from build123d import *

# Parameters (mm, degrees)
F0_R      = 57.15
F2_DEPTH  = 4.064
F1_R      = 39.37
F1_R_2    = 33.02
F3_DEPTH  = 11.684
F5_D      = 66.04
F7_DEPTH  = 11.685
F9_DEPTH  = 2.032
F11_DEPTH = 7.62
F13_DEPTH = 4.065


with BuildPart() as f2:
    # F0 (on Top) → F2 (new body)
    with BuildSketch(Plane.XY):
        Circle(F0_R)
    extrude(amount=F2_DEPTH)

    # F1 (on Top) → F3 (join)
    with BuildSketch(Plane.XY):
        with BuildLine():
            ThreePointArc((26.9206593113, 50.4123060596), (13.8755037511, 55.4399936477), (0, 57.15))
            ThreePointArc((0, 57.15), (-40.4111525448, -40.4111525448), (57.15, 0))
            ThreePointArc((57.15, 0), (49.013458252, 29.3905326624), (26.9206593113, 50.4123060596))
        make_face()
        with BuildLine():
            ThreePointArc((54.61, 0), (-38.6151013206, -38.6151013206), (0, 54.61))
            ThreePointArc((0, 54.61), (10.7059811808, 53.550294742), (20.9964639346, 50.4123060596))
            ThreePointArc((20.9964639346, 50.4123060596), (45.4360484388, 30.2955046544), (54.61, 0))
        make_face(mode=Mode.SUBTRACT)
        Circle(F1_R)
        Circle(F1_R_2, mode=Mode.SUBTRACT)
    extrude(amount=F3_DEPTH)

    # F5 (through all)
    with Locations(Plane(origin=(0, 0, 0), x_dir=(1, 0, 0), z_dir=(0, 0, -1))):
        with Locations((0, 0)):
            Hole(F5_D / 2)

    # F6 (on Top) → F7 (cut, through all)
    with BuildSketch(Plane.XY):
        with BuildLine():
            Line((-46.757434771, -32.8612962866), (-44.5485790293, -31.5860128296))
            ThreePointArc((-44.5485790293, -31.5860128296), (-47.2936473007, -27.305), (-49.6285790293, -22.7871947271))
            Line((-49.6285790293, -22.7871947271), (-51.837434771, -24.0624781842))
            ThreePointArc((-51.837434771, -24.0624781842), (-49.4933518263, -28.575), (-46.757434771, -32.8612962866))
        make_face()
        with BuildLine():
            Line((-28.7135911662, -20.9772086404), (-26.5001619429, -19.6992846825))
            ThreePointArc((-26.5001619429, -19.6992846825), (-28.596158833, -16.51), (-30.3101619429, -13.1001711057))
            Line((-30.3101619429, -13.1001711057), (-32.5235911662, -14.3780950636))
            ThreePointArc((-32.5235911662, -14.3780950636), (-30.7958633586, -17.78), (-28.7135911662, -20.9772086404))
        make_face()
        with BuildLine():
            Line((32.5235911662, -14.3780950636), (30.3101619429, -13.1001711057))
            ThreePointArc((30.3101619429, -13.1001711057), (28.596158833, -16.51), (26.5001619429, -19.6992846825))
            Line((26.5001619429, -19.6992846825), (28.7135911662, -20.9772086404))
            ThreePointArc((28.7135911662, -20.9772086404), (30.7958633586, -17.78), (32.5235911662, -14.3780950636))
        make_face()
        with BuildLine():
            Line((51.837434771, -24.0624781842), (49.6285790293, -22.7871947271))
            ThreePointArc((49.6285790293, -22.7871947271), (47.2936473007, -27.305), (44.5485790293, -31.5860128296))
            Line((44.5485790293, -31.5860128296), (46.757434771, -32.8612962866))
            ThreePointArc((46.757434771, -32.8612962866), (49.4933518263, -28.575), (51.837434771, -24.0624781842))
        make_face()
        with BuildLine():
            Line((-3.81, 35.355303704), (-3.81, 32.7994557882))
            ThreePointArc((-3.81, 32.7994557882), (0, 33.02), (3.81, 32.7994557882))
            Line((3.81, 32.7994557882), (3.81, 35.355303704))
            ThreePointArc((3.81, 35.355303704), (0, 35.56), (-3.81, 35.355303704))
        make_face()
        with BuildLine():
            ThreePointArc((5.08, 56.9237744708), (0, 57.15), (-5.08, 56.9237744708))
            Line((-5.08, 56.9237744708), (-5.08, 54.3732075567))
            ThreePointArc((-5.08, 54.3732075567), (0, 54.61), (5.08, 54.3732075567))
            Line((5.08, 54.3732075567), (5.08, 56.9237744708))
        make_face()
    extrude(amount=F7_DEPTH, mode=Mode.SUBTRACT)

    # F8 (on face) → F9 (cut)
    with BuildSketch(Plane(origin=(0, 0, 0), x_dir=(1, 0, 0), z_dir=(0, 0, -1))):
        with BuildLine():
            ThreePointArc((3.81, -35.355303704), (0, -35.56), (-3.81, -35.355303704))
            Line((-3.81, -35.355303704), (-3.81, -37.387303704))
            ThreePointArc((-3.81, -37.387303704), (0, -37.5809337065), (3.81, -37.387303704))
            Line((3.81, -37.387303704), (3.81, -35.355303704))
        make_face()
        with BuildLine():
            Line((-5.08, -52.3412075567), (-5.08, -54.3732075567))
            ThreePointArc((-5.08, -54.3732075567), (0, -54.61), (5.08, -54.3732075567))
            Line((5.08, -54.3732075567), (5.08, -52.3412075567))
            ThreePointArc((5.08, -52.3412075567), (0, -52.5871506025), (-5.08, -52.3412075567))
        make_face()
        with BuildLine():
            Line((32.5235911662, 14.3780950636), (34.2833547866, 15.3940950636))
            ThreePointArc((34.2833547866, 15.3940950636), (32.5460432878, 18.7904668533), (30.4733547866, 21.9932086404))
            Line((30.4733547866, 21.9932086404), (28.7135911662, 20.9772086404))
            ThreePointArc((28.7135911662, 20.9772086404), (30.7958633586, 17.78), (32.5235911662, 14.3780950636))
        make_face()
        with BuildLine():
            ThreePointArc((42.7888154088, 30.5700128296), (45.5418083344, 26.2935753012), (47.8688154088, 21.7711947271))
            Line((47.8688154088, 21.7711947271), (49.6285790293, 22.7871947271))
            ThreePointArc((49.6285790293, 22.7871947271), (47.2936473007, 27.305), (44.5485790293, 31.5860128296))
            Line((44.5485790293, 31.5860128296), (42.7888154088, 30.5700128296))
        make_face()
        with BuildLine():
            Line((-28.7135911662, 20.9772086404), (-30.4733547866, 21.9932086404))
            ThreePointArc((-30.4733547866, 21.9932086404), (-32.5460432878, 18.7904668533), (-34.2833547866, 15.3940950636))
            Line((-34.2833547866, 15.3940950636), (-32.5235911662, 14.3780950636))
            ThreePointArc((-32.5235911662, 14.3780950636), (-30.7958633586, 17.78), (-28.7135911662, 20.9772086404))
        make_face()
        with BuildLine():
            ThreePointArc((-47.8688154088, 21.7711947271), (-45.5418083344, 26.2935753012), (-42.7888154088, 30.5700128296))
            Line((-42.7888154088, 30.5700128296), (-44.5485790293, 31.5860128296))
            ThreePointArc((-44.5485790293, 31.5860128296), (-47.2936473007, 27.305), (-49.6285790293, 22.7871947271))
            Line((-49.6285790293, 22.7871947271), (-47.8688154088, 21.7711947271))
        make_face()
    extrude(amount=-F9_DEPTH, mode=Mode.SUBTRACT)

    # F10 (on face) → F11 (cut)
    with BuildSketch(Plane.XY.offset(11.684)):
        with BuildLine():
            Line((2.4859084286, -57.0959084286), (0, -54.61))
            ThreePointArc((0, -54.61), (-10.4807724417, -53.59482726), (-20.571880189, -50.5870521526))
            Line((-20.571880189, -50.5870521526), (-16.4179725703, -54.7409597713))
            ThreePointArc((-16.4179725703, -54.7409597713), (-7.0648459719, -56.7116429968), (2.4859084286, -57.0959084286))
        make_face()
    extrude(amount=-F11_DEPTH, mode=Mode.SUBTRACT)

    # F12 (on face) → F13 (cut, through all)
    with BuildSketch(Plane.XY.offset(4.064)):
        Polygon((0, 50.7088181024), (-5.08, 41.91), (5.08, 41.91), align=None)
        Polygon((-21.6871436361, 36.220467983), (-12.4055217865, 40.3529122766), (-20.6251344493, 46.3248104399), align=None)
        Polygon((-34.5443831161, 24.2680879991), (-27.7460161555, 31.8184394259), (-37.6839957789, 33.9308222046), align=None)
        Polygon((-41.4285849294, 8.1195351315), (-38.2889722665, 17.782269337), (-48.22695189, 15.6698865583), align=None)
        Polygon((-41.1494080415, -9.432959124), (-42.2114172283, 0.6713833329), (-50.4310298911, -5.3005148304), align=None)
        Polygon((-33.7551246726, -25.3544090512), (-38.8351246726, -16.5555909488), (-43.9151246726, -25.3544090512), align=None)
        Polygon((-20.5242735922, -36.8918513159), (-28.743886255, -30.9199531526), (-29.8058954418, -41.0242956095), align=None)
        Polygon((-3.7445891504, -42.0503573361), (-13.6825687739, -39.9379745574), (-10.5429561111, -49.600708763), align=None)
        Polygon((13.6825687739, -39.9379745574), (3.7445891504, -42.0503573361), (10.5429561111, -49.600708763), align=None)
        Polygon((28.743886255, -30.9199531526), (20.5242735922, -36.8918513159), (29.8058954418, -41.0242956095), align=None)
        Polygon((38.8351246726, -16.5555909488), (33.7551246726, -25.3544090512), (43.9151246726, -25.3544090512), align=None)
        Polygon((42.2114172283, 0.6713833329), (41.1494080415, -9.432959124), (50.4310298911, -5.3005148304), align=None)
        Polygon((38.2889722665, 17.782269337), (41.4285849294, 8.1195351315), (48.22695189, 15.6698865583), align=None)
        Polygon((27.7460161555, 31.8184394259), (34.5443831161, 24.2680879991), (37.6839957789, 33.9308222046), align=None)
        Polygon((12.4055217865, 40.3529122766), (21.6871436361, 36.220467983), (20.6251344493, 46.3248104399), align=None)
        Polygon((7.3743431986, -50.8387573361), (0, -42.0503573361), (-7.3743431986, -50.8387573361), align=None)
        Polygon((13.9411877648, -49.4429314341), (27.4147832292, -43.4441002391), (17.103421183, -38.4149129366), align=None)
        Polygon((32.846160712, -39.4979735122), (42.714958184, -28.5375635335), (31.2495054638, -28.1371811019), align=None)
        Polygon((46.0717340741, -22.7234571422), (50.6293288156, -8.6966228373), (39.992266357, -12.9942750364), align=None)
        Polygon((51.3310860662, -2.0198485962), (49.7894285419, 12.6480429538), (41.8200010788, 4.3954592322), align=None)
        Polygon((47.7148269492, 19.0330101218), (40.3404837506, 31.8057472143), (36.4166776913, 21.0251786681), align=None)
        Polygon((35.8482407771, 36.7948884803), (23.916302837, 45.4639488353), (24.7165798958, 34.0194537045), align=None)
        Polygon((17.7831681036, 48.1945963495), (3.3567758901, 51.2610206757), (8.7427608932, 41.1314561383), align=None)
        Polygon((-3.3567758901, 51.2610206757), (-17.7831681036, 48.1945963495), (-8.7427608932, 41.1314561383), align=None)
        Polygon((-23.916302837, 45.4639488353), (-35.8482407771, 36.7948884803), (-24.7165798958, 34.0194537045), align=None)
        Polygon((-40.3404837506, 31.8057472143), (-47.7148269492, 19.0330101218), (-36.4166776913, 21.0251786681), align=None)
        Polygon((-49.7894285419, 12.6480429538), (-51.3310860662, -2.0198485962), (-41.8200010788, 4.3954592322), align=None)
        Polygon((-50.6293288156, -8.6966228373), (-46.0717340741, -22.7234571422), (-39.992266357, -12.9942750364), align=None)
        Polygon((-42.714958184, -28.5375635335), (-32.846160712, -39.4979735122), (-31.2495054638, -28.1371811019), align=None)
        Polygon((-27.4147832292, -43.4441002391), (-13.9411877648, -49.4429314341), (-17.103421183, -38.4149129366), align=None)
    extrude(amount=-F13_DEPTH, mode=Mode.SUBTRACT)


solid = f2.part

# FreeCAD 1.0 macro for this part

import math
import FreeCAD as App
import Part
import Sketcher

V = App.Vector
Q = App.Units.Quantity


def add_polygon(sketch, points):
    """Adds a closed chain of lines whose ends are joined by coincident constraints."""
    first, n = sketch.GeometryCount, len(points)
    for a, b in zip(points, points[1:] + points[:1]):
        sketch.addGeometry(Part.LineSegment(App.Vector(*a, 0), App.Vector(*b, 0)), False)
    for i in range(n):
        sketch.addConstraint(Sketcher.Constraint("Coincident", first + i, 2, first + (i + 1) % n, 1))

doc = App.newDocument("Part")
body = doc.addObject("PartDesign::Body", "Body")

# Sketch on XY plane
sketch1 = doc.addObject("Sketcher::SketchObject", "Sketch")
body.addObject(sketch1)
sketch1.AttachmentSupport = (doc.XY_Plane, [""])
sketch1.MapMode = "FlatFace"
sketch1.addGeometry(Part.Circle(V(0, 0, 0), V(0, 0, 1), 57), False)
sketch1.addConstraint([
    Sketcher.Constraint("Coincident", 0, 3, -1, 1),
    Sketcher.Constraint("Diameter", 0, Q("4.5 in")),
])
pad1 = doc.addObject("PartDesign::Pad", "Pad")
body.addObject(pad1)
pad1.Profile = sketch1
pad1.Length = Q("0.16 in")

# Sketch on XY plane
sketch2 = doc.addObject("Sketcher::SketchObject", "Sketch001")
body.addObject(sketch2)
sketch2.AttachmentSupport = (doc.XY_Plane, [""])
sketch2.MapMode = "FlatFace"
sketch2.addGeometry([
    Part.ArcOfCircle(Part.Circle(V(0, 0, 0), V(0, 0, 1), 57), math.radians(62), math.radians(90)),  # 0
    Part.ArcOfCircle(Part.Circle(V(0, 0, 0), V(0, 0, 1), 57), math.radians(90), math.radians(422)),  # 1
    Part.ArcOfCircle(Part.Circle(V(0, 0, 0), V(0, 0, 1), 55), math.radians(0), math.radians(67)),  # 2
    Part.ArcOfCircle(Part.Circle(V(0, 0, 0), V(0, 0, 1), 55), math.radians(90), math.radians(360)),  # 3
    Part.ArcOfCircle(Part.Circle(V(0, 0, 0), V(0, 0, 1), 55), math.radians(67), math.radians(90)),  # 4
    Part.Circle(V(0, 0, 0), V(0, 0, 1), 39),  # 5
    Part.Circle(V(0, 0, 0), V(0, 0, 1), 33),  # 6
], False)
sketch2.addConstraint([
    Sketcher.Constraint("Tangent", 0, 1, 1, 2),
    Sketcher.Constraint("Coincident", 1, 1, 0, 2),
    Sketcher.Constraint("Tangent", 2, 1, 3, 2),
    Sketcher.Constraint("Tangent", 3, 1, 4, 2),
    Sketcher.Constraint("Tangent", 4, 1, 2, 2),
    Sketcher.Constraint("Coincident", 0, 3, -1, 1),
    Sketcher.Constraint("Coincident", 2, 3, -1, 1),
    Sketcher.Constraint("Coincident", 5, 3, -1, 1),
    Sketcher.Constraint("Coincident", 6, 3, -1, 1),
    Sketcher.Constraint("PointOnObject", 1, 1, -2),
    Sketcher.Constraint("PointOnObject", 2, 1, -1),
    Sketcher.Constraint("PointOnObject", 3, 1, -2),
    Sketcher.Constraint("Horizontal", 0, 1, 4, 1),
    Sketcher.Constraint("Diameter", 5, Q("3.1 in")),
    Sketcher.Constraint("Diameter", 6, Q("2.6 in")),
    Sketcher.Constraint("Radius", 0, Q("2.25 in")),
    Sketcher.Constraint("Radius", 2, Q("2.15 in")),
    Sketcher.Constraint("DistanceX", -1, 1, 0, 1, Q("26.920659 mm")),
])
pad2 = doc.addObject("PartDesign::Pad", "Pad001")
body.addObject(pad2)
pad2.Profile = sketch2
pad2.Length = Q("0.46 in")

# Sketch on XY plane
sketch3 = doc.addObject("Sketcher::SketchObject", "Sketch002")
body.addObject(sketch3)
sketch3.AttachmentSupport = (doc.XY_Plane, [""])
sketch3.MapMode = "FlatFace"
sketch3.addGeometry(Part.Circle(V(0, 0, 0), V(0, 0, 1), 33), False)
sketch3.addConstraint([
    Sketcher.Constraint("Coincident", 0, 3, -1, 1),
    Sketcher.Constraint("Diameter", 0, Q("2.6 in")),
])
doc.recompute()
hole = doc.addObject("PartDesign::Hole", "Hole")
body.addObject(hole)
hole.Profile = sketch3
hole.ThreadType = "None"
hole.Diameter = Q("2.6 in")
hole.DepthType = "ThroughAll"
hole.Reversed = True

# Sketch on XY plane
sketch4 = doc.addObject("Sketcher::SketchObject", "Sketch003")
body.addObject(sketch4)
sketch4.AttachmentSupport = (doc.XY_Plane, [""])
sketch4.MapMode = "FlatFace"
sketch4.addGeometry([
    Part.LineSegment(V(-46.8, -32.9, 0), V(-44.5, -31.6, 0)),  # 0
    Part.ArcOfCircle(Part.Circle(V(0, 0, 0), V(0, 0, 1), 54.6), math.radians(-155.34), math.radians(-144.66)),  # 1
    Part.LineSegment(V(-49.6, -22.8, 0), V(-51.8, -24.1, 0)),  # 2
    Part.ArcOfCircle(Part.Circle(V(0, 0, 0), V(0, 0, 1), 57.1), math.radians(-155.1), math.radians(-144.9)),  # 3
    Part.LineSegment(V(-28.7, -21, 0), V(-26.5, -19.7, 0)),  # 4
    Part.ArcOfCircle(Part.Circle(V(0, 0, 0), V(0, 0, 1), 33), math.radians(-156.63), math.radians(-143.37)),  # 5
    Part.LineSegment(V(-30.3, -13.1, 0), V(-32.5, -14.4, 0)),  # 6
    Part.ArcOfCircle(Part.Circle(V(0, 0, 0), V(0, 0, 1), 35.6), math.radians(-156.15), math.radians(-143.85)),  # 7
    Part.LineSegment(V(32.5, -14.4, 0), V(30.3, -13.1, 0)),  # 8
    Part.ArcOfCircle(Part.Circle(V(0, 0, 0), V(0, 0, 1), 33), math.radians(-36.63), math.radians(-23.37)),  # 9
    Part.LineSegment(V(26.5, -19.7, 0), V(28.7, -21, 0)),  # 10
    Part.ArcOfCircle(Part.Circle(V(0, 0, 0), V(0, 0, 1), 35.6), math.radians(-36.15), math.radians(-23.85)),  # 11
    Part.LineSegment(V(51.8, -24.1, 0), V(49.6, -22.8, 0)),  # 12
    Part.ArcOfCircle(Part.Circle(V(0, 0, 0), V(0, 0, 1), 54.6), math.radians(-35.34), math.radians(-24.66)),  # 13
    Part.LineSegment(V(44.5, -31.6, 0), V(46.8, -32.9, 0)),  # 14
    Part.ArcOfCircle(Part.Circle(V(0, 0, 0), V(0, 0, 1), 57.1), math.radians(-35.1), math.radians(-24.9)),  # 15
    Part.LineSegment(V(-3.8, 35.4, 0), V(-3.8, 32.8, 0)),  # 16
    Part.ArcOfCircle(Part.Circle(V(0, 0, 0), V(0, 0, 1), 33), math.radians(83.37), math.radians(96.63)),  # 17
    Part.LineSegment(V(3.8, 32.8, 0), V(3.8, 35.4, 0)),  # 18
    Part.ArcOfCircle(Part.Circle(V(0, 0, 0), V(0, 0, 1), 35.6), math.radians(83.85), math.radians(96.15)),  # 19
    Part.ArcOfCircle(Part.Circle(V(0, 0, 0), V(0, 0, 1), 57.2), math.radians(84.9), math.radians(95.1)),  # 20
    Part.LineSegment(V(-5.1, 56.9, 0), V(-5.1, 54.4, 0)),  # 21
    Part.ArcOfCircle(Part.Circle(V(0, 0, 0), V(0, 0, 1), 54.6), math.radians(84.66), math.radians(95.34)),  # 22
    Part.LineSegment(V(5.1, 54.4, 0), V(5.1, 56.9, 0)),  # 23
], False)
sketch4.addConstraint([
    Sketcher.Constraint("Coincident", 0, 2, 1, 2),
    Sketcher.Constraint("Coincident", 1, 1, 2, 1),
    Sketcher.Constraint("Coincident", 2, 2, 3, 1),
    Sketcher.Constraint("Coincident", 3, 2, 0, 1),
    Sketcher.Constraint("Coincident", 4, 2, 5, 2),
    Sketcher.Constraint("Coincident", 5, 1, 6, 1),
    Sketcher.Constraint("Coincident", 6, 2, 7, 1),
    Sketcher.Constraint("Coincident", 7, 2, 4, 1),
    Sketcher.Constraint("Coincident", 8, 2, 9, 2),
    Sketcher.Constraint("Coincident", 9, 1, 10, 1),
    Sketcher.Constraint("Coincident", 10, 2, 11, 1),
    Sketcher.Constraint("Coincident", 11, 2, 8, 1),
    Sketcher.Constraint("Coincident", 12, 2, 13, 2),
    Sketcher.Constraint("Coincident", 13, 1, 14, 1),
    Sketcher.Constraint("Coincident", 14, 2, 15, 1),
    Sketcher.Constraint("Coincident", 15, 2, 12, 1),
    Sketcher.Constraint("Coincident", 16, 2, 17, 2),
    Sketcher.Constraint("Coincident", 17, 1, 18, 1),
    Sketcher.Constraint("Coincident", 18, 2, 19, 1),
    Sketcher.Constraint("Coincident", 19, 2, 16, 1),
    Sketcher.Constraint("Coincident", 20, 2, 21, 1),
    Sketcher.Constraint("Coincident", 21, 2, 22, 2),
    Sketcher.Constraint("Coincident", 22, 1, 23, 1),
    Sketcher.Constraint("Coincident", 23, 2, 20, 1),
    Sketcher.Constraint("Vertical", 16),
    Sketcher.Constraint("Vertical", 18),
    Sketcher.Constraint("Vertical", 21),
    Sketcher.Constraint("Vertical", 23),
    Sketcher.Constraint("Coincident", 1, 3, -1, 1),
    Sketcher.Constraint("Coincident", 3, 3, -1, 1),
    Sketcher.Constraint("Coincident", 5, 3, -1, 1),
    Sketcher.Constraint("Coincident", 7, 3, -1, 1),
    Sketcher.Constraint("Coincident", 9, 3, -1, 1),
    Sketcher.Constraint("Coincident", 11, 3, -1, 1),
    Sketcher.Constraint("Coincident", 13, 3, -1, 1),
    Sketcher.Constraint("Coincident", 15, 3, -1, 1),
    Sketcher.Constraint("Coincident", 17, 3, -1, 1),
    Sketcher.Constraint("Coincident", 19, 3, -1, 1),
    Sketcher.Constraint("Coincident", 20, 3, -1, 1),
    Sketcher.Constraint("Coincident", 22, 3, -1, 1),
    Sketcher.Constraint("Equal", 5, 9),
    Sketcher.Constraint("Equal", 7, 11),
    Sketcher.Constraint("Equal", 1, 13),
    Sketcher.Constraint("Equal", 3, 15),
    Sketcher.Constraint("Equal", 9, 17),
    Sketcher.Constraint("Equal", 11, 19),
    Sketcher.Constraint("Equal", 15, 20),
    Sketcher.Constraint("Equal", 13, 22),
    Sketcher.Constraint("Parallel", 0, 2),
    Sketcher.Constraint("Parallel", 2, 4),
    Sketcher.Constraint("Parallel", 4, 6),
    Sketcher.Constraint("Parallel", 8, 10),
    Sketcher.Constraint("Parallel", 10, 12),
    Sketcher.Constraint("Parallel", 12, 14),
    Sketcher.Constraint("Horizontal", 5, 1, 8, 2),
    Sketcher.Constraint("Horizontal", 4, 2, 9, 1),
    Sketcher.Constraint("Horizontal", 7, 2, 10, 2),
    Sketcher.Constraint("Horizontal", 1, 1, 12, 2),
    Sketcher.Constraint("Horizontal", 0, 2, 13, 1),
    Sketcher.Constraint("Horizontal", 16, 2, 17, 1),
    Sketcher.Constraint("Horizontal", 21, 2, 22, 1),
    Sketcher.Constraint("Equal", 0, 2),
    Sketcher.Constraint("Equal", 4, 6),
    Sketcher.Constraint("Radius", 5, Q("1.3 in")),
    Sketcher.Constraint("Radius", 7, Q("1.4 in")),
    Sketcher.Constraint("Radius", 1, Q("2.15 in")),
    Sketcher.Constraint("Radius", 3, Q("2.25 in")),
    Sketcher.Constraint("Angle", 0, Q("30 deg")),
    Sketcher.Constraint("DistanceX", 20, 2, -1, 1, Q("0.2 in")),
    Sketcher.Constraint("DistanceX", 1, 1, 0, 2, Q("0.2 in")),
    Sketcher.Constraint("DistanceX", 16, 2, 17, 1, Q("0.3 in")),
    Sketcher.Constraint("DistanceX", 5, 1, 4, 2, Q("0.15 in")),
])
pocket1 = doc.addObject("PartDesign::Pocket", "Pocket")
body.addObject(pocket1)
pocket1.Profile = sketch4
pocket1.Type = "ThroughAll"
pocket1.Reversed = True

# Sketch on XY plane
sketch5 = doc.addObject("Sketcher::SketchObject", "Sketch004")
body.addObject(sketch5)
sketch5.AttachmentSupport = (doc.XY_Plane, [""])
sketch5.MapMode = "FlatFace"
sketch5.addGeometry([
    Part.ArcOfCircle(Part.Circle(V(0, 0, 0), V(0, 0, 1), 35.6), math.radians(83.85), math.radians(96.15)),  # 0
    Part.LineSegment(V(-3.8, 35.4, 0), V(-3.8, 37.4, 0)),  # 1
    Part.ArcOfCircle(Part.Circle(V(0, 0, 0), V(0, 0, 1), 37.6), math.radians(84.18), math.radians(95.82)),  # 2
    Part.LineSegment(V(3.8, 37.4, 0), V(3.8, 35.4, 0)),  # 3
    Part.LineSegment(V(-5.1, 52.3, 0), V(-5.1, 54.4, 0)),  # 4
    Part.ArcOfCircle(Part.Circle(V(0, 0, 0), V(0, 0, 1), 54.6), math.radians(84.66), math.radians(95.34)),  # 5
    Part.LineSegment(V(5.1, 54.4, 0), V(5.1, 52.3, 0)),  # 6
    Part.ArcOfCircle(Part.Circle(V(0, 0, 0), V(0, 0, 1), 52.6), math.radians(84.46), math.radians(95.54)),  # 7
    Part.LineSegment(V(32.5, -14.4, 0), V(34.3, -15.4, 0)),  # 8
    Part.ArcOfCircle(Part.Circle(V(0, 0, 0), V(0, 0, 1), 37.6), math.radians(-35.82), math.radians(-24.18)),  # 9
    Part.LineSegment(V(30.5, -22, 0), V(28.7, -21, 0)),  # 10
    Part.ArcOfCircle(Part.Circle(V(0, 0, 0), V(0, 0, 1), 35.6), math.radians(-36.15), math.radians(-23.85)),  # 11
    Part.ArcOfCircle(Part.Circle(V(0, 0, 0), V(0, 0, 1), 52.6), math.radians(-35.54), math.radians(-24.46)),  # 12
    Part.LineSegment(V(47.9, -21.8, 0), V(49.6, -22.8, 0)),  # 13
    Part.ArcOfCircle(Part.Circle(V(0, 0, 0), V(0, 0, 1), 54.6), math.radians(-35.34), math.radians(-24.66)),  # 14
    Part.LineSegment(V(44.5, -31.6, 0), V(42.8, -30.6, 0)),  # 15
    Part.LineSegment(V(-28.7, -21, 0), V(-30.5, -22, 0)),  # 16
    Part.ArcOfCircle(Part.Circle(V(0, 0, 0), V(0, 0, 1), 37.6), math.radians(-155.82), math.radians(-144.18)),  # 17
    Part.LineSegment(V(-34.3, -15.4, 0), V(-32.5, -14.4, 0)),  # 18
    Part.ArcOfCircle(Part.Circle(V(0, 0, 0), V(0, 0, 1), 35.6), math.radians(-156.15), math.radians(-143.85)),  # 19
    Part.ArcOfCircle(Part.Circle(V(0, 0, 0), V(0, 0, 1), 52.6), math.radians(-155.54), math.radians(-144.46)),  # 20
    Part.LineSegment(V(-42.8, -30.6, 0), V(-44.5, -31.6, 0)),  # 21
    Part.ArcOfCircle(Part.Circle(V(0, 0, 0), V(0, 0, 1), 54.6), math.radians(-155.34), math.radians(-144.66)),  # 22
    Part.LineSegment(V(-49.6, -22.8, 0), V(-47.9, -21.8, 0)),  # 23
], False)
sketch5.addConstraint([
    Sketcher.Constraint("Coincident", 0, 2, 1, 1),
    Sketcher.Constraint("Coincident", 1, 2, 2, 2),
    Sketcher.Constraint("Coincident", 2, 1, 3, 1),
    Sketcher.Constraint("Coincident", 3, 2, 0, 1),
    Sketcher.Constraint("Coincident", 4, 2, 5, 2),
    Sketcher.Constraint("Coincident", 5, 1, 6, 1),
    Sketcher.Constraint("Coincident", 6, 2, 7, 1),
    Sketcher.Constraint("Coincident", 7, 2, 4, 1),
    Sketcher.Constraint("Coincident", 8, 2, 9, 2),
    Sketcher.Constraint("Coincident", 9, 1, 10, 1),
    Sketcher.Constraint("Coincident", 10, 2, 11, 1),
    Sketcher.Constraint("Coincident", 11, 2, 8, 1),
    Sketcher.Constraint("Coincident", 12, 2, 13, 1),
    Sketcher.Constraint("Coincident", 13, 2, 14, 2),
    Sketcher.Constraint("Coincident", 14, 1, 15, 1),
    Sketcher.Constraint("Coincident", 15, 2, 12, 1),
    Sketcher.Constraint("Coincident", 16, 2, 17, 2),
    Sketcher.Constraint("Coincident", 17, 1, 18, 1),
    Sketcher.Constraint("Coincident", 18, 2, 19, 1),
    Sketcher.Constraint("Coincident", 19, 2, 16, 1),
    Sketcher.Constraint("Coincident", 20, 2, 21, 1),
    Sketcher.Constraint("Coincident", 21, 2, 22, 2),
    Sketcher.Constraint("Coincident", 22, 1, 23, 1),
    Sketcher.Constraint("Coincident", 23, 2, 20, 1),
    Sketcher.Constraint("Vertical", 1),
    Sketcher.Constraint("Vertical", 3),
    Sketcher.Constraint("Vertical", 4),
    Sketcher.Constraint("Vertical", 6),
    Sketcher.Constraint("Coincident", 0, 3, -1, 1),
    Sketcher.Constraint("Coincident", 2, 3, -1, 1),
    Sketcher.Constraint("Coincident", 5, 3, -1, 1),
    Sketcher.Constraint("Coincident", 7, 3, -1, 1),
    Sketcher.Constraint("Coincident", 9, 3, -1, 1),
    Sketcher.Constraint("Coincident", 11, 3, -1, 1),
    Sketcher.Constraint("Coincident", 12, 3, -1, 1),
    Sketcher.Constraint("Coincident", 14, 3, -1, 1),
    Sketcher.Constraint("Coincident", 17, 3, -1, 1),
    Sketcher.Constraint("Coincident", 19, 3, -1, 1),
    Sketcher.Constraint("Coincident", 20, 3, -1, 1),
    Sketcher.Constraint("Coincident", 22, 3, -1, 1),
    Sketcher.Constraint("Equal", 2, 9),
    Sketcher.Constraint("Equal", 0, 11),
    Sketcher.Constraint("Equal", 7, 12),
    Sketcher.Constraint("Equal", 5, 14),
    Sketcher.Constraint("Equal", 9, 17),
    Sketcher.Constraint("Equal", 11, 19),
    Sketcher.Constraint("Equal", 12, 20),
    Sketcher.Constraint("Equal", 14, 22),
    Sketcher.Constraint("Parallel", 8, 10),
    Sketcher.Constraint("Parallel", 10, 13),
    Sketcher.Constraint("Parallel", 13, 15),
    Sketcher.Constraint("Parallel", 16, 18),
    Sketcher.Constraint("Parallel", 18, 21),
    Sketcher.Constraint("Parallel", 21, 23),
    Sketcher.Constraint("Horizontal", 1, 2, 2, 1),
    Sketcher.Constraint("Horizontal", 4, 2, 5, 1),
    Sketcher.Constraint("Horizontal", 9, 1, 16, 2),
    Sketcher.Constraint("Horizontal", 8, 2, 17, 1),
    Sketcher.Constraint("Horizontal", 11, 2, 18, 2),
    Sketcher.Constraint("Horizontal", 15, 2, 20, 2),
    Sketcher.Constraint("Horizontal", 13, 2, 22, 1),
    Sketcher.Constraint("Equal", 3, 4),
    Sketcher.Constraint("Equal", 8, 10),
    Sketcher.Constraint("Equal", 10, 13),
    Sketcher.Constraint("Radius", 0, Q("1.4 in")),
    Sketcher.Constraint("Radius", 5, Q("2.15 in")),
    Sketcher.Constraint("Angle", 8, Q("-30 deg")),
    Sketcher.Constraint("DistanceY", 1, 1, 1, 2, Q("0.08 in")),
    Sketcher.Constraint("DistanceX", 4, 2, -1, 1, Q("0.2 in")),
    Sketcher.Constraint("DistanceX", 1, 2, 2, 1, Q("0.3 in")),
    Sketcher.Constraint("DistanceX", 14, 1, 13, 2, Q("0.2 in")),
    Sketcher.Constraint("DistanceX", 9, 1, 8, 2, Q("0.15 in")),
])
pocket2 = doc.addObject("PartDesign::Pocket", "Pocket001")
body.addObject(pocket2)
pocket2.Profile = sketch5
pocket2.Length = Q("0.08 in")
pocket2.Reversed = True

# Sketch on XY plane
sketch6 = doc.addObject("Sketcher::SketchObject", "Sketch005")
body.addObject(sketch6)
sketch6.AttachmentSupport = (doc.XY_Plane, [""])
sketch6.MapMode = "FlatFace"
sketch6.AttachmentOffset = App.Placement(V(0, 0, 0.46 * 25.4), App.Rotation())
sketch6.addGeometry([
    Part.LineSegment(V(2.5, -57.1, 0), V(0, -54.6, 0)),
    Part.ArcOfCircle(Part.Circle(V(0, 0, 0), V(0, 0, 1), 54.6), math.radians(-112), math.radians(-90)),
    Part.LineSegment(V(-20.6, -50.6, 0), V(-16.4, -54.7, 0)),
    Part.ArcOfCircle(Part.Circle(V(0, 0, 0), V(0, 0, 1), 57.1), math.radians(-106.7), math.radians(-87.51)),
], False)
sketch6.addConstraint([
    Sketcher.Constraint("Coincident", 0, 2, 1, 2),
    Sketcher.Constraint("Coincident", 1, 1, 2, 1),
    Sketcher.Constraint("Coincident", 2, 2, 3, 1),
    Sketcher.Constraint("Coincident", 3, 2, 0, 1),
    Sketcher.Constraint("Coincident", 1, 3, -1, 1),
    Sketcher.Constraint("Coincident", 3, 3, -1, 1),
    Sketcher.Constraint("PointOnObject", 0, 2, -2),
    Sketcher.Constraint("Parallel", 0, 2),
    Sketcher.Constraint("Radius", 1, Q("2.15 in")),
    Sketcher.Constraint("Radius", 3, Q("2.25 in")),
    Sketcher.Constraint("Angle", 0, Q("135 deg")),
    Sketcher.Constraint("DistanceX", 1, 1, -1, 1, Q("20.57188 mm")),
])
pocket3 = doc.addObject("PartDesign::Pocket", "Pocket002")
body.addObject(pocket3)
pocket3.Profile = sketch6
pocket3.Length = Q("0.3 in")

# Sketch on XY plane
sketch7 = doc.addObject("Sketcher::SketchObject", "Sketch006")
body.addObject(sketch7)
sketch7.AttachmentSupport = (doc.XY_Plane, [""])
sketch7.MapMode = "FlatFace"
sketch7.AttachmentOffset = App.Placement(V(0, 0, 0.16 * 25.4), App.Rotation())
add_polygon(sketch7, [(0, 51), (-5, 42), (5, 42)])  # lines 0-2
add_polygon(sketch7, [(-22, 36), (-12, 40), (-21, 46)])  # lines 3-5
add_polygon(sketch7, [(-35, 24), (-28, 32), (-38, 34)])  # lines 6-8
add_polygon(sketch7, [(-41, 8), (-38, 18), (-48, 16)])  # lines 9-11
add_polygon(sketch7, [(-41, -9), (-42, 1), (-50, -5)])  # lines 12-14
add_polygon(sketch7, [(-34, -25), (-39, -17), (-44, -25)])  # lines 15-17
add_polygon(sketch7, [(-21, -37), (-29, -31), (-30, -41)])  # lines 18-20
add_polygon(sketch7, [(-4, -42), (-14, -40), (-11, -50)])  # lines 21-23
add_polygon(sketch7, [(14, -40), (4, -42), (11, -50)])  # lines 24-26
add_polygon(sketch7, [(29, -31), (21, -37), (30, -41)])  # lines 27-29
add_polygon(sketch7, [(39, -17), (34, -25), (44, -25)])  # lines 30-32
add_polygon(sketch7, [(42, 1), (41, -9), (50, -5)])  # lines 33-35
add_polygon(sketch7, [(38, 18), (41, 8), (48, 16)])  # lines 36-38
add_polygon(sketch7, [(28, 32), (35, 24), (38, 34)])  # lines 39-41
add_polygon(sketch7, [(12, 40), (22, 36), (21, 46)])  # lines 42-44
add_polygon(sketch7, [(7, -51), (0, -42), (-7, -51)])  # lines 45-47
add_polygon(sketch7, [(14, -49), (27, -43), (17, -38)])  # lines 48-50
add_polygon(sketch7, [(33, -39), (43, -29), (31, -28)])  # lines 51-53
add_polygon(sketch7, [(46, -23), (51, -9), (40, -13)])  # lines 54-56
add_polygon(sketch7, [(51, -2), (50, 13), (42, 4)])  # lines 57-59
add_polygon(sketch7, [(48, 19), (40, 32), (36, 21)])  # lines 60-62
add_polygon(sketch7, [(36, 37), (24, 45), (25, 34)])  # lines 63-65
add_polygon(sketch7, [(18, 48), (3, 51), (9, 41)])  # lines 66-68
add_polygon(sketch7, [(-3, 51), (-18, 48), (-9, 41)])  # lines 69-71
add_polygon(sketch7, [(-24, 45), (-36, 37), (-25, 34)])  # lines 72-74
add_polygon(sketch7, [(-40, 32), (-48, 19), (-36, 21)])  # lines 75-77
add_polygon(sketch7, [(-50, 13), (-51, -2), (-42, 4)])  # lines 78-80
add_polygon(sketch7, [(-51, -9), (-46, -23), (-40, -13)])  # lines 81-83
add_polygon(sketch7, [(-43, -29), (-33, -39), (-31, -28)])  # lines 84-86
add_polygon(sketch7, [(-27, -43), (-14, -49), (-17, -38)])  # lines 87-89
sketch7.addConstraint([
    Sketcher.Constraint("Horizontal", 1),
    Sketcher.Constraint("Horizontal", 17),
    Sketcher.Constraint("Horizontal", 31),
    Sketcher.Constraint("Horizontal", 47),
    Sketcher.Constraint("Symmetric", 23, 2, 24, 2, -2),
    Sketcher.Constraint("Symmetric", 22, 2, 25, 2, -2),
    Sketcher.Constraint("Symmetric", 21, 2, 26, 2, -2),
    Sketcher.Constraint("Symmetric", 20, 2, 27, 2, -2),
    Sketcher.Constraint("Symmetric", 19, 2, 28, 2, -2),
    Sketcher.Constraint("Symmetric", 18, 2, 29, 2, -2),
    Sketcher.Constraint("Symmetric", 17, 2, 30, 2, -2),
    Sketcher.Constraint("Symmetric", 15, 2, 32, 2, -2),
    Sketcher.Constraint("Symmetric", 14, 2, 33, 2, -2),
    Sketcher.Constraint("Symmetric", 13, 2, 34, 2, -2),
    Sketcher.Constraint("Symmetric", 12, 2, 35, 2, -2),
    Sketcher.Constraint("Symmetric", 11, 2, 36, 2, -2),
    Sketcher.Constraint("Symmetric", 10, 2, 37, 2, -2),
    Sketcher.Constraint("Symmetric", 9, 2, 38, 2, -2),
    Sketcher.Constraint("Symmetric", 8, 2, 39, 2, -2),
    Sketcher.Constraint("Symmetric", 7, 2, 40, 2, -2),
    Sketcher.Constraint("Symmetric", 6, 2, 41, 2, -2),
    Sketcher.Constraint("Symmetric", 5, 2, 42, 2, -2),
    Sketcher.Constraint("Symmetric", 4, 2, 43, 2, -2),
    Sketcher.Constraint("Symmetric", 3, 2, 44, 2, -2),
    Sketcher.Constraint("Symmetric", 68, 2, 69, 2, -2),
    Sketcher.Constraint("Symmetric", 67, 2, 70, 2, -2),
    Sketcher.Constraint("Symmetric", 66, 2, 71, 2, -2),
    Sketcher.Constraint("Symmetric", 65, 2, 72, 2, -2),
    Sketcher.Constraint("Symmetric", 64, 2, 73, 2, -2),
    Sketcher.Constraint("Symmetric", 63, 2, 74, 2, -2),
    Sketcher.Constraint("Symmetric", 62, 2, 75, 2, -2),
    Sketcher.Constraint("Symmetric", 61, 2, 76, 2, -2),
    Sketcher.Constraint("Symmetric", 60, 2, 77, 2, -2),
    Sketcher.Constraint("Symmetric", 59, 2, 78, 2, -2),
    Sketcher.Constraint("Symmetric", 58, 2, 79, 2, -2),
    Sketcher.Constraint("Symmetric", 57, 2, 80, 2, -2),
    Sketcher.Constraint("Symmetric", 56, 2, 81, 2, -2),
    Sketcher.Constraint("Symmetric", 55, 2, 82, 2, -2),
    Sketcher.Constraint("Symmetric", 54, 2, 83, 2, -2),
    Sketcher.Constraint("Symmetric", 53, 2, 84, 2, -2),
    Sketcher.Constraint("Symmetric", 52, 2, 85, 2, -2),
    Sketcher.Constraint("Symmetric", 51, 2, 86, 2, -2),
    Sketcher.Constraint("Symmetric", 50, 2, 87, 2, -2),
    Sketcher.Constraint("Symmetric", 49, 2, 88, 2, -2),
    Sketcher.Constraint("Symmetric", 48, 2, 89, 2, -2),
    Sketcher.Constraint("PointOnObject", 2, 2, -2),
    Sketcher.Constraint("PointOnObject", 45, 2, -2),
    Sketcher.Constraint("Parallel", 2, 15),
    Sketcher.Constraint("Parallel", 0, 16),
    Sketcher.Constraint("Parallel", 4, 18),
    Sketcher.Constraint("Parallel", 5, 19),
    Sketcher.Constraint("Parallel", 3, 20),
    Sketcher.Constraint("Parallel", 7, 21),
    Sketcher.Constraint("Parallel", 8, 22),
    Sketcher.Constraint("Parallel", 6, 23),
    Sketcher.Constraint("Parallel", 10, 24),
    Sketcher.Constraint("Parallel", 11, 25),
    Sketcher.Constraint("Parallel", 9, 26),
    Sketcher.Constraint("Parallel", 13, 27),
    Sketcher.Constraint("Parallel", 14, 28),
    Sketcher.Constraint("Parallel", 12, 29),
    Sketcher.Constraint("Parallel", 16, 30),
    Sketcher.Constraint("Parallel", 15, 32),
    Sketcher.Constraint("Parallel", 34, 48),
    Sketcher.Constraint("Parallel", 37, 51),
    Sketcher.Constraint("Parallel", 40, 54),
    Sketcher.Constraint("Parallel", 43, 57),
    Sketcher.Constraint("Parallel", 32, 60),
    Sketcher.Constraint("Parallel", 35, 63),
    Sketcher.Constraint("Parallel", 38, 66),
    Sketcher.Constraint("Horizontal", 24, 2, 45, 2),
    Sketcher.Constraint("Equal", 1, 17),
    Sketcher.Constraint("Equal", 2, 3),
    Sketcher.Constraint("Equal", 3, 4),
    Sketcher.Constraint("Equal", 4, 5),
    Sketcher.Constraint("Equal", 5, 6),
    Sketcher.Constraint("Equal", 6, 7),
    Sketcher.Constraint("Equal", 7, 8),
    Sketcher.Constraint("Equal", 8, 9),
    Sketcher.Constraint("Equal", 11, 12),
    Sketcher.Constraint("Equal", 16, 18),
    Sketcher.Constraint("Equal", 20, 21),
    Sketcher.Constraint("Equal", 45, 46),
    Sketcher.Constraint("Equal", 46, 49),
    Sketcher.Constraint("Equal", 49, 50),
    Sketcher.Constraint("Equal", 48, 51),
    Sketcher.Constraint("Equal", 50, 52),
    Sketcher.Constraint("Equal", 52, 53),
    Sketcher.Constraint("Equal", 51, 54),
    Sketcher.Constraint("Equal", 53, 55),
    Sketcher.Constraint("Equal", 55, 56),
    Sketcher.Constraint("Equal", 54, 57),
    Sketcher.Constraint("Equal", 56, 58),
    Sketcher.Constraint("Equal", 58, 59),
    Sketcher.Constraint("Equal", 57, 60),
    Sketcher.Constraint("Equal", 59, 61),
    Sketcher.Constraint("Equal", 61, 62),
    Sketcher.Constraint("Equal", 60, 63),
    Sketcher.Constraint("Equal", 62, 64),
    Sketcher.Constraint("Equal", 64, 65),
    Sketcher.Constraint("Equal", 63, 66),
    Sketcher.Constraint("Equal", 65, 67),
    Sketcher.Constraint("Equal", 67, 68),
    Sketcher.Constraint("DistanceX", 1, 1, 1, 2, Q("0.4 in")),
    Sketcher.Constraint("Angle", 0, Q("-120 deg")),
    Sketcher.Constraint("Angle", 3, Q("24 deg")),
    Sketcher.Constraint("Angle", 6, Q("48 deg")),
    Sketcher.Constraint("Angle", 45, Q("130 deg")),
    Sketcher.Constraint("Angle", 49, Q("154 deg")),
    Sketcher.Constraint("DistanceY", -1, 1, 0, 2, Q("1.65 in")),
    Sketcher.Constraint("DistanceY", 48, 2, -1, 1, Q("43.4441 mm")),
    Sketcher.Constraint("DistanceX", -1, 1, 58, 2, Q("41.820001 mm")),
    Sketcher.Constraint("Distance", 45, Q("11.472441 mm")),
    Sketcher.Constraint("DistanceX", 3, 2, -1, 1, Q("12.405522 mm")),
    Sketcher.Constraint("DistanceY", -1, 1, 4, 2, Q("46.32481 mm")),
    Sketcher.Constraint("DistanceY", -1, 1, 6, 2, Q("31.818439 mm")),
    Sketcher.Constraint("DistanceY", -1, 1, 9, 2, Q("17.782269 mm")),
    Sketcher.Constraint("DistanceX", 10, 2, -1, 1, Q("48.226952 mm")),
    Sketcher.Constraint("DistanceX", 13, 2, -1, 1, Q("50.43103 mm")),
    Sketcher.Constraint("DistanceY", 14, 2, -1, 1, Q("9.432959 mm")),
    Sketcher.Constraint("DistanceY", 15, 2, -1, 1, Q("16.555591 mm")),
    Sketcher.Constraint("DistanceY", 20, 2, -1, 1, Q("36.891851 mm")),
    Sketcher.Constraint("DistanceX", 21, 2, -1, 1, Q("13.682569 mm")),
    Sketcher.Constraint("DistanceY", 22, 2, -1, 1, Q("49.600709 mm")),
    Sketcher.Constraint("DistanceX", -1, 1, 49, 2, Q("17.103421 mm")),
    Sketcher.Constraint("DistanceX", -1, 1, 51, 2, Q("42.714958 mm")),
    Sketcher.Constraint("DistanceY", 52, 2, -1, 1, Q("28.137181 mm")),
    Sketcher.Constraint("DistanceX", -1, 1, 54, 2, Q("50.629329 mm")),
    Sketcher.Constraint("DistanceY", -1, 1, 58, 2, Q("4.395459 mm")),
    Sketcher.Constraint("DistanceY", -1, 1, 61, 2, Q("21.025179 mm")),
    Sketcher.Constraint("DistanceY", -1, 1, 63, 2, Q("45.463949 mm")),
    Sketcher.Constraint("DistanceX", -1, 1, 64, 2, Q("24.71658 mm")),
    Sketcher.Constraint("DistanceY", -1, 1, 66, 2, Q("51.261021 mm")),
    Sketcher.Constraint("DistanceX", -1, 1, 67, 2, Q("8.742761 mm")),
    Sketcher.Constraint("DistanceX", 6, 2, -1, 1, Q("27.746016 mm")),
    Sketcher.Constraint("DistanceX", 15, 2, -1, 1, Q("38.835125 mm")),
    Sketcher.Constraint("DistanceX", 18, 2, -1, 1, Q("28.743886 mm")),
    Sketcher.Constraint("DistanceY", 54, 2, -1, 1, Q("8.696623 mm")),
    Sketcher.Constraint("DistanceX", -1, 1, 60, 2, Q("40.340484 mm")),
])
pocket4 = doc.addObject("PartDesign::Pocket", "Pocket003")
body.addObject(pocket4)
pocket4.Profile = sketch7
pocket4.Type = "ThroughAll"

doc.recompute()
